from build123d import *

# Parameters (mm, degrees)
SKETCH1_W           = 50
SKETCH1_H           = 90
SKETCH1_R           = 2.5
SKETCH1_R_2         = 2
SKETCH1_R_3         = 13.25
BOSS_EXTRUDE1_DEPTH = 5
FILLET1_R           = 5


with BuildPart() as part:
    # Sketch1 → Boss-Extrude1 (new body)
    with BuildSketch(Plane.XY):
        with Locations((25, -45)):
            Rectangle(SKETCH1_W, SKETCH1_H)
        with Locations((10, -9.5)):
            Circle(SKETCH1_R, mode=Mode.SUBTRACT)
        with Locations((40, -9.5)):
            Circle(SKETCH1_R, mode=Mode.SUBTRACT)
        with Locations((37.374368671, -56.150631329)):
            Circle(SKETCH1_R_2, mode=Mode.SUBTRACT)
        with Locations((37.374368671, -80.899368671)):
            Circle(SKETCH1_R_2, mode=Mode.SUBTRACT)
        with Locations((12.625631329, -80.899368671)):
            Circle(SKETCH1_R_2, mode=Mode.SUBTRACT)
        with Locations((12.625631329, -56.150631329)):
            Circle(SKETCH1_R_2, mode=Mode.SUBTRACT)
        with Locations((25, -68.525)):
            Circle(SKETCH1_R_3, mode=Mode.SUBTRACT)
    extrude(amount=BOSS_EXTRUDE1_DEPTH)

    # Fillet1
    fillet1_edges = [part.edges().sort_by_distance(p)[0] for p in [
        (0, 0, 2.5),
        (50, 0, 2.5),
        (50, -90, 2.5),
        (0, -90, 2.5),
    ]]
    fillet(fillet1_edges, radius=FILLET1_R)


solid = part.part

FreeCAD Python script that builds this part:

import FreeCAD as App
import Part
import Sketcher
Q = App.Units.Quantity


def edges_at(feature, points):
    """Names of the edges that pass closest to the given points."""
    edges = feature.Shape.Edges
    near = lambda p: min(range(len(edges)), key=lambda i: edges[i].distToShape(Part.Vertex(*p))[0])
    return sorted({f"Edge{near(p) + 1}" for p in points})

doc = App.newDocument("Part")
body = doc.addObject("PartDesign::Body", "Body")

# Sketch on XY plane
sketch1 = body.newObject("Sketcher::SketchObject", "Sketch")
sketch1.AttachmentSupport = (doc.getObject("XY_Plane"), [""])
sketch1.MapMode = "FlatFace"
sketch1.addGeometry(Part.LineSegment(App.Vector(0, 0, 0), App.Vector(0, -90, 0)), False)
sketch1.addGeometry(Part.LineSegment(App.Vector(0, -90, 0), App.Vector(50, -90, 0)), False)
sketch1.addGeometry(Part.LineSegment(App.Vector(50, -90, 0), App.Vector(50, 0, 0)), False)
sketch1.addGeometry(Part.LineSegment(App.Vector(50, 0, 0), App.Vector(0, 0, 0)), False)
sketch1.addGeometry(Part.Circle(App.Vector(12.625631, -80.899369, 0), App.Vector(0, 0, 1), 2), False)
sketch1.addGeometry(Part.Circle(App.Vector(12.625631, -56.150631, 0), App.Vector(0, 0, 1), 2), False)
sketch1.addGeometry(Part.Circle(App.Vector(25, -68.525, 0), App.Vector(0, 0, 1), 13.25), False)
sketch1.addGeometry(Part.Circle(App.Vector(37.374369, -80.899369, 0), App.Vector(0, 0, 1), 2), False)
sketch1.addGeometry(Part.Circle(App.Vector(37.374369, -56.150631, 0), App.Vector(0, 0, 1), 2), False)
sketch1.addGeometry(Part.Circle(App.Vector(10, -9.5, 0), App.Vector(0, 0, 1), 2.5), False)
sketch1.addGeometry(Part.Circle(App.Vector(40, -9.5, 0), App.Vector(0, 0, 1), 2.5), False)
sketch1.addConstraint(Sketcher.Constraint("Coincident", 0, 2, 1, 1))
sketch1.addConstraint(Sketcher.Constraint("Coincident", 1, 2, 2, 1))
sketch1.addConstraint(Sketcher.Constraint("Coincident", 2, 2, 3, 1))
sketch1.addConstraint(Sketcher.Constraint("Coincident", 3, 2, 0, 1))
sketch1.addConstraint(Sketcher.Constraint("Vertical", 0))
sketch1.addConstraint(Sketcher.Constraint("Horizontal", 1))
sketch1.addConstraint(Sketcher.Constraint("Vertical", 2))
sketch1.addConstraint(Sketcher.Constraint("Horizontal", 3))
sketch1.addConstraint(Sketcher.Constraint("Coincident", 3, 2, -1, 1))
sketch1.addConstraint(Sketcher.Constraint("Equal", 4, 5))
sketch1.addConstraint(Sketcher.Constraint("Equal", 5, 7))
sketch1.addConstraint(Sketcher.Constraint("Equal", 7, 8))
sketch1.addConstraint(Sketcher.Constraint("Equal", 9, 10))
sketch1.addConstraint(Sketcher.Constraint("Horizontal", 4, 3, 7, 3))
sketch1.addConstraint(Sketcher.Constraint("Horizontal", 5, 3, 8, 3))
sketch1.addConstraint(Sketcher.Constraint("Horizontal", 9, 3, 10, 3))
sketch1.addConstraint(Sketcher.Constraint("Vertical", 4, 3, 5, 3))
sketch1.addConstraint(Sketcher.Constraint("Vertical", 7, 3, 8, 3))
sketch1.addConstraint(Sketcher.Constraint("Diameter", 4, Q("4 mm")))
sketch1.addConstraint(Sketcher.Constraint("Diameter", 9, Q("5 mm")))
sketch1.addConstraint(Sketcher.Constraint("Diameter", 6, Q("26.5 mm")))
sketch1.addConstraint(Sketcher.Constraint("DistanceX", 1, 1, 1, 2, Q("50 mm")))
sketch1.addConstraint(Sketcher.Constraint("DistanceY", 0, 2, 0, 1, Q("90 mm")))
sketch1.addConstraint(Sketcher.Constraint("DistanceX", -1, 1, 6, 3, Q("25 mm")))
sketch1.addConstraint(Sketcher.Constraint("DistanceX", -1, 1, 9, 3, Q("10 mm")))
sketch1.addConstraint(Sketcher.Constraint("DistanceX", -1, 1, 10, 3, Q("40 mm")))
sketch1.addConstraint(Sketcher.Constraint("DistanceY", 9, 3, -1, 1, Q("9.5 mm")))
sketch1.addConstraint(Sketcher.Constraint("DistanceY", 6, 3, -1, 1, Q("68.525 mm")))
sketch1.addConstraint(Sketcher.Constraint("DistanceX", -1, 1, 4, 3, Q("12.625631 mm")))
sketch1.addConstraint(Sketcher.Constraint("DistanceY", 4, 3, -1, 1, Q("80.899369 mm")))
sketch1.addConstraint(Sketcher.Constraint("DistanceY", 5, 3, -1, 1, Q("56.150631 mm")))
sketch1.addConstraint(Sketcher.Constraint("DistanceX", -1, 1, 7, 3, Q("37.374369 mm")))
pad1 = body.newObject("PartDesign::Pad", "Pad")
pad1.Profile = sketch1
pad1.Length = 5
doc.recompute()

fillet = body.newObject("PartDesign::Fillet", "Fillet")
fillet.Base = (pad1, edges_at(pad1, [
    (0, 0, 2.5),
    (50, 0, 2.5),
    (50, -90, 2.5),
    (0, -90, 2.5),
]))
fillet.Radius = 5

doc.recompute()
